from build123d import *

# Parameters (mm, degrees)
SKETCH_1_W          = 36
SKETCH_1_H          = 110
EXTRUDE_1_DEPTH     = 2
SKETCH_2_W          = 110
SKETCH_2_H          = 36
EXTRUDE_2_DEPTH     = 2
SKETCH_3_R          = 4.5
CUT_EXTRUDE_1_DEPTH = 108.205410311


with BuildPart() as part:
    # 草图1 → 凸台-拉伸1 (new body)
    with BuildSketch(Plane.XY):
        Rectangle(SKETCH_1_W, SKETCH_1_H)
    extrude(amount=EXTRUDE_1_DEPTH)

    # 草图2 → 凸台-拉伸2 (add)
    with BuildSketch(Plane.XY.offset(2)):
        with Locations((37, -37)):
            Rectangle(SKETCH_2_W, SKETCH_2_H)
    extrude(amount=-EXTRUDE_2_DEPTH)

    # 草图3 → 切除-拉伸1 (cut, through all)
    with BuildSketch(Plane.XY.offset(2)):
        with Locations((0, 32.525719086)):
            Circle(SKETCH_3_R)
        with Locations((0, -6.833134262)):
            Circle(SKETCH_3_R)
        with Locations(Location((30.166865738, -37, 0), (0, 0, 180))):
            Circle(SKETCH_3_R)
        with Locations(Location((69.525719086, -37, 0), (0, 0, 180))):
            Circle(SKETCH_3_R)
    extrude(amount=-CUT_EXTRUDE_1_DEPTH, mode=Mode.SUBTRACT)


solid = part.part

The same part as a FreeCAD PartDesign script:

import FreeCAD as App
import Part
import Sketcher
from FreeCAD import Vector


def add_polygon(sketch, points):
    """Adds a closed chain of lines whose ends are joined by coincident constraints."""
    first, n = sketch.GeometryCount, len(points)
    for a, b in zip(points, points[1:] + points[:1]):
        sketch.addGeometry(Part.LineSegment(App.Vector(*a, 0), App.Vector(*b, 0)), False)
    for i in range(n):
        sketch.addConstraint(Sketcher.Constraint("Coincident", first + i, 2, first + (i + 1) % n, 1))

doc = App.newDocument("Part")
body = doc.addObject("PartDesign::Body", "Body")

# Sketch on XY plane
sketch1 = body.newObject("Sketcher::SketchObject", "Sketch")
sketch1.AttachmentSupport = (doc.getObject("XY_Plane"), [""])
sketch1.MapMode = "FlatFace"
add_polygon(sketch1, [(-18, 55), (-18, -55), (18, -55), (18, 55)])  # lines 0-3
sketch1.addConstraint([
    Sketcher.Constraint("Vertical", 0),
    Sketcher.Constraint("Horizontal", 1),
    Sketcher.Constraint("Vertical", 2),
    Sketcher.Constraint("Horizontal", 3),
    Sketcher.Constraint("Symmetric", 0, 2, 2, 2, -1, 1),
    Sketcher.Constraint("DistanceX", 1, 1, 1, 2, 36.0),
    Sketcher.Constraint("DistanceY", 0, 2, 0, 1, 110.0),
])
pad1 = body.newObject("PartDesign::Pad", "Pad")
pad1.Profile = sketch1
pad1.Length = 2

# Sketch on XY plane
sketch2 = body.newObject("Sketcher::SketchObject", "Sketch001")
sketch2.AttachmentSupport = (doc.getObject("XY_Plane"), [""])
sketch2.MapMode = "FlatFace"
sketch2.AttachmentOffset = App.Placement(Vector(0, 0, 2), App.Rotation())
add_polygon(sketch2, [(-18, -19), (-18, -55), (92, -55), (92, -19)])  # lines 0-3
sketch2.addConstraint([
    Sketcher.Constraint("Vertical", 0),
    Sketcher.Constraint("Horizontal", 1),
    Sketcher.Constraint("Vertical", 2),
    Sketcher.Constraint("Horizontal", 3),
    Sketcher.Constraint("DistanceX", 1, 1, 1, 2, 110.0),
    Sketcher.Constraint("DistanceY", 0, 2, 0, 1, 36.0),
    Sketcher.Constraint("DistanceX", 0, 2, -1, 1, 18.0),
    Sketcher.Constraint("DistanceY", 0, 2, -1, 1, 55.0),
])
pad2 = body.newObject("PartDesign::Pad", "Pad001")
pad2.Profile = sketch2
pad2.Length = 2
pad2.Reversed = True

# Sketch on XY plane
sketch3 = body.newObject("Sketcher::SketchObject", "Sketch002")
sketch3.AttachmentSupport = (doc.getObject("XY_Plane"), [""])
sketch3.MapMode = "FlatFace"
sketch3.AttachmentOffset = App.Placement(Vector(0, 0, 2), App.Rotation())
sketch3.addGeometry([
    Part.Circle(Vector(0, 32.5, 0), Vector(0, 0, 1), 4.5),
    Part.Circle(Vector(0, -6.8, 0), Vector(0, 0, 1), 4.5),
    Part.Circle(Vector(30.2, -37, 0), Vector(0, 0, 1), 4.5),
    Part.Circle(Vector(69.5, -37, 0), Vector(0, 0, 1), 4.5),
], False)
sketch3.addConstraint([
    Sketcher.Constraint("Equal", 0, 1),
    Sketcher.Constraint("Equal", 1, 2),
    Sketcher.Constraint("Equal", 2, 3),
    Sketcher.Constraint("PointOnObject", 0, 3, -2),
    Sketcher.Constraint("PointOnObject", 1, 3, -2),
    Sketcher.Constraint("Horizontal", 2, 3, 3, 3),
    Sketcher.Constraint("Diameter", 0, 9.0),
    Sketcher.Constraint("DistanceY", 2, 3, -1, 1, 37.0),
    Sketcher.Constraint("DistanceY", -1, 1, 0, 3, 32.525719),
    Sketcher.Constraint("DistanceX", -1, 1, 3, 3, 69.525719),
    Sketcher.Constraint("DistanceY", 1, 3, -1, 1, 6.833134),
    Sketcher.Constraint("DistanceX", -1, 1, 2, 3, 30.166866),
])
pocket1 = body.newObject("PartDesign::Pocket", "Pocket")
pocket1.Profile = sketch3
pocket1.Type = "ThroughAll"

doc.recompute()
